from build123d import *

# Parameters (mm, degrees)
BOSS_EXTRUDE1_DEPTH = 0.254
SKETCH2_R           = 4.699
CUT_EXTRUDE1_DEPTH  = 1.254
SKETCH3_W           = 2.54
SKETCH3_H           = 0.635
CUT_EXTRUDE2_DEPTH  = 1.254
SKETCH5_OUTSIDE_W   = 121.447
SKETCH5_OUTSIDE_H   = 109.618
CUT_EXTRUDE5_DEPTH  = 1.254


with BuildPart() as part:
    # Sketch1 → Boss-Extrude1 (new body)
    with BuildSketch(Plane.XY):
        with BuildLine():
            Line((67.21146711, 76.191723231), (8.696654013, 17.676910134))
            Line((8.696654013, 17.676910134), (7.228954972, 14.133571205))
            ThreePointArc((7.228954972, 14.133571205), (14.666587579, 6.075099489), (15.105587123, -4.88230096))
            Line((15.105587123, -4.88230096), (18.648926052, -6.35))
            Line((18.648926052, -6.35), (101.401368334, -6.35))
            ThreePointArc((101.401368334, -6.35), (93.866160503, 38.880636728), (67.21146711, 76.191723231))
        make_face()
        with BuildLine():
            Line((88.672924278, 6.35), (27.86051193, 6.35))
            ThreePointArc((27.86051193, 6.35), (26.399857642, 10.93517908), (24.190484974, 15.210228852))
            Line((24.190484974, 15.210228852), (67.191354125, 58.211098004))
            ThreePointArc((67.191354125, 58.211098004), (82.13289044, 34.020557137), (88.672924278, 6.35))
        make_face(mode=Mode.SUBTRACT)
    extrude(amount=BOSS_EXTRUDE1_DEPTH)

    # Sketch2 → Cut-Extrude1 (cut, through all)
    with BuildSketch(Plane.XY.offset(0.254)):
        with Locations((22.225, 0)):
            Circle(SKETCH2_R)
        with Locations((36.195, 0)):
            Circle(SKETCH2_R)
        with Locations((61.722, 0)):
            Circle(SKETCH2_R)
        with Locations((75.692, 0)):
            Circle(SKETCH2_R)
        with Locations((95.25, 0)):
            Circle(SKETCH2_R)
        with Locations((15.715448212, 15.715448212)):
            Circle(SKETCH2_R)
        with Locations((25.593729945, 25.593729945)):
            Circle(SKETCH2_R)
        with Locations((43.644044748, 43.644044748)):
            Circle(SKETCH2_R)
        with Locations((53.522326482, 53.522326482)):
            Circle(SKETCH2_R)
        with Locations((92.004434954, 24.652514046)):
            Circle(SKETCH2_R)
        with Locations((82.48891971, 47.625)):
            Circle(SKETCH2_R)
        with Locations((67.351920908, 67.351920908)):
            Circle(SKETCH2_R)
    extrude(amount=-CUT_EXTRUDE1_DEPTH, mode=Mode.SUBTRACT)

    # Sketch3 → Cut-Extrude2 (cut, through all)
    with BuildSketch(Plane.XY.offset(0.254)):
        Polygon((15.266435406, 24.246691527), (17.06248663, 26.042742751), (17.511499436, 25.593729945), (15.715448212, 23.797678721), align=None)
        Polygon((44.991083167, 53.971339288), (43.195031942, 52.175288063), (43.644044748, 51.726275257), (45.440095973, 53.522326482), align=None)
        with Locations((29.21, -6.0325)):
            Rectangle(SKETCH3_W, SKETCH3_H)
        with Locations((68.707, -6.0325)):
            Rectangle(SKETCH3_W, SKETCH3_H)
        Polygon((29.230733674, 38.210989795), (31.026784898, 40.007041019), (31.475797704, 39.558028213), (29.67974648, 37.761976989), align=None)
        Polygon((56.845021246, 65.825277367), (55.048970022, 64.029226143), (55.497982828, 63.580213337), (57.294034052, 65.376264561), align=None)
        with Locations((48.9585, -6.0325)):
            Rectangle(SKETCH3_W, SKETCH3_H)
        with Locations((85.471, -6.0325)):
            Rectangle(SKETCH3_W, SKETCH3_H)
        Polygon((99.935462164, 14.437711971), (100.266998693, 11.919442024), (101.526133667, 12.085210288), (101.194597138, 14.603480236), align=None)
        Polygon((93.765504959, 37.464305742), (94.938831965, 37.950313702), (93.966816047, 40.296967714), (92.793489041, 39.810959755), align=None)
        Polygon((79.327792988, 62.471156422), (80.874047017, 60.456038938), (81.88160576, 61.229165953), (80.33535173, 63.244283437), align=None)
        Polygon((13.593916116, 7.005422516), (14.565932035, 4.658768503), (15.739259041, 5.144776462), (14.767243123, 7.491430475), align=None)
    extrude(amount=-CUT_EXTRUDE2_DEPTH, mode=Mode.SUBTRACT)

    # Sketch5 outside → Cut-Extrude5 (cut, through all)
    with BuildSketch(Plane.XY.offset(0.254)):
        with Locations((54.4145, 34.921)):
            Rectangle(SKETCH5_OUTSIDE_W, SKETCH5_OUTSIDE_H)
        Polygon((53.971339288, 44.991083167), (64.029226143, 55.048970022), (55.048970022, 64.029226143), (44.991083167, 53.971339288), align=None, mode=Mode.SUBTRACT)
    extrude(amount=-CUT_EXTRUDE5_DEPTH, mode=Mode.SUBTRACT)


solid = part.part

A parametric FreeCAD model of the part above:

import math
import FreeCAD as App
import Part
import Sketcher
from FreeCAD import Vector
Q = App.Units.Quantity


def add_polygon(sketch, points):
    """Adds a closed chain of lines whose ends are joined by coincident constraints."""
    first, n = sketch.GeometryCount, len(points)
    for a, b in zip(points, points[1:] + points[:1]):
        sketch.addGeometry(Part.LineSegment(App.Vector(*a, 0), App.Vector(*b, 0)), False)
    for i in range(n):
        sketch.addConstraint(Sketcher.Constraint("Coincident", first + i, 2, first + (i + 1) % n, 1))

doc = App.newDocument("Part")
body = doc.addObject("PartDesign::Body", "Body")

# Sketch on XY plane
sketch1 = doc.addObject("Sketcher::SketchObject", "Sketch")
body.addObject(sketch1)
sketch1.AttachmentSupport = (doc.XY_Plane, [""])
sketch1.MapMode = "FlatFace"
sketch1.addGeometry([
    Part.LineSegment(Vector(67.2, 76.2, 0), Vector(8.7, 17.7, 0)),  # 0
    Part.LineSegment(Vector(8.7, 17.7, 0), Vector(7.2, 14.1, 0)),  # 1
    Part.ArcOfCircle(Part.Circle(Vector(0, 0, 0), Vector(0, 0, 1), 15.9), math.radians(-18), math.radians(63)),  # 2
    Part.LineSegment(Vector(15.1, -4.9, 0), Vector(18.6, -6.3, 0)),  # 3
    Part.LineSegment(Vector(18.6, -6.3, 0), Vector(101.4, -6.3, 0)),  # 4
    Part.ArcOfCircle(Part.Circle(Vector(0, 0, 0), Vector(0, 0, 1), 101.6), math.radians(-4), math.radians(49)),  # 5
    Part.ArcOfCircle(Part.Circle(Vector(0, 0, 0), Vector(0, 0, 1), 88.9), math.radians(4), math.radians(41)),  # 6
    Part.LineSegment(Vector(88.7, 6.3, 0), Vector(27.9, 6.3, 0)),  # 7
    Part.ArcOfCircle(Part.Circle(Vector(0, 0, 0), Vector(0, 0, 1), 28.6), math.radians(12.84), math.radians(32.16)),  # 8
    Part.LineSegment(Vector(24.2, 15.2, 0), Vector(67.2, 58.2, 0)),  # 9
], False)
sketch1.addConstraint([
    Sketcher.Constraint("Coincident", 0, 2, 1, 1),
    Sketcher.Constraint("Coincident", 1, 2, 2, 2),
    Sketcher.Constraint("Coincident", 2, 1, 3, 1),
    Sketcher.Constraint("Coincident", 3, 2, 4, 1),
    Sketcher.Constraint("Coincident", 4, 2, 5, 1),
    Sketcher.Constraint("Coincident", 5, 2, 0, 1),
    Sketcher.Constraint("Coincident", 6, 1, 7, 1),
    Sketcher.Constraint("Coincident", 7, 2, 8, 1),
    Sketcher.Constraint("Coincident", 8, 2, 9, 1),
    Sketcher.Constraint("Coincident", 9, 2, 6, 2),
    Sketcher.Constraint("Horizontal", 4),
    Sketcher.Constraint("Horizontal", 7),
    Sketcher.Constraint("Coincident", 2, 3, -1, 1),
    Sketcher.Constraint("Coincident", 5, 3, -1, 1),
    Sketcher.Constraint("Coincident", 6, 3, -1, 1),
    Sketcher.Constraint("Coincident", 8, 3, -1, 1),
    Sketcher.Constraint("Perpendicular", 1, 3),
    Sketcher.Constraint("Parallel", 0, 9),
    Sketcher.Constraint("Equal", 1, 3),
    Sketcher.Constraint("Radius", 5, Q("4 in")),
    Sketcher.Constraint("Radius", 6, Q("3.5 in")),
    Sketcher.Constraint("Angle", 0, Q("-135 deg")),
    Sketcher.Constraint("Radius", 2, Q("0.625 in")),
    Sketcher.Constraint("Radius", 8, Q("1.125 in")),
    Sketcher.Constraint("Angle", 1, Q("-112.5 deg")),
    Sketcher.Constraint("DistanceY", 4, 2, 6, 1, Q("0.5 in")),
    Sketcher.Constraint("DistanceY", 3, 2, -1, 1, Q("0.25 in")),
    Sketcher.Constraint("DistanceY", 2, 1, -1, 1, Q("4.882301 mm")),
    Sketcher.Constraint("DistanceY", -1, 1, 9, 2, Q("58.211098 mm")),
    Sketcher.Constraint("DistanceX", 5, 2, 4, 2, Q("34.189901 mm")),
])
pad1 = doc.addObject("PartDesign::Pad", "Pad")
body.addObject(pad1)
pad1.Profile = sketch1
pad1.Length = Q("0.01 in")

# Sketch on XY plane
sketch2 = doc.addObject("Sketcher::SketchObject", "Sketch001")
body.addObject(sketch2)
sketch2.AttachmentSupport = (doc.XY_Plane, [""])
sketch2.MapMode = "FlatFace"
sketch2.AttachmentOffset = App.Placement(Vector(0, 0, 0.01 * 25.4), App.Rotation())
sketch2.addGeometry([
    Part.Circle(Vector(22.2, 0, 0), Vector(0, 0, 1), 4.7),  # 0
    Part.Circle(Vector(36.2, 0, 0), Vector(0, 0, 1), 4.7),  # 1
    Part.Circle(Vector(61.7, 0, 0), Vector(0, 0, 1), 4.7),  # 2
    Part.Circle(Vector(75.7, 0, 0), Vector(0, 0, 1), 4.7),  # 3
    Part.Circle(Vector(95.2, 0, 0), Vector(0, 0, 1), 4.7),  # 4
    Part.Circle(Vector(15.7, 15.7, 0), Vector(0, 0, 1), 4.7),  # 5
    Part.Circle(Vector(25.6, 25.6, 0), Vector(0, 0, 1), 4.7),  # 6
    Part.Circle(Vector(43.6, 43.6, 0), Vector(0, 0, 1), 4.7),  # 7
    Part.Circle(Vector(53.5, 53.5, 0), Vector(0, 0, 1), 4.7),  # 8
    Part.Circle(Vector(92, 24.7, 0), Vector(0, 0, 1), 4.7),  # 9
    Part.Circle(Vector(82.5, 47.6, 0), Vector(0, 0, 1), 4.7),  # 10
    Part.Circle(Vector(67.4, 67.4, 0), Vector(0, 0, 1), 4.7),  # 11
], False)
sketch2.addConstraint([
    Sketcher.Constraint("Equal", 0, 1),
    Sketcher.Constraint("Equal", 1, 2),
    Sketcher.Constraint("Equal", 2, 3),
    Sketcher.Constraint("Equal", 3, 4),
    Sketcher.Constraint("Equal", 4, 5),
    Sketcher.Constraint("Equal", 5, 6),
    Sketcher.Constraint("Equal", 6, 7),
    Sketcher.Constraint("Equal", 7, 8),
    Sketcher.Constraint("Equal", 8, 9),
    Sketcher.Constraint("Equal", 9, 10),
    Sketcher.Constraint("Equal", 10, 11),
    Sketcher.Constraint("PointOnObject", 0, 3, -1),
    Sketcher.Constraint("PointOnObject", 1, 3, -1),
    Sketcher.Constraint("PointOnObject", 2, 3, -1),
    Sketcher.Constraint("PointOnObject", 3, 3, -1),
    Sketcher.Constraint("PointOnObject", 4, 3, -1),
    Sketcher.Constraint("Diameter", 0, Q("0.37 in")),
    Sketcher.Constraint("DistanceX", -1, 1, 2, 3, Q("2.43 in")),
    Sketcher.Constraint("DistanceX", -1, 1, 3, 3, Q("2.98 in")),
    Sketcher.Constraint("DistanceX", -1, 1, 4, 3, Q("3.75 in")),
    Sketcher.Constraint("DistanceX", 0, 3, 1, 3, Q("0.55 in")),
    Sketcher.Constraint("DistanceX", -1, 1, 0, 3, Q("0.875 in")),
    Sketcher.Constraint("DistanceY", -1, 1, 10, 3, Q("1.875 in")),
    Sketcher.Constraint("DistanceX", 11, 3, 10, 3, Q("15.136999 mm")),
    Sketcher.Constraint("DistanceX", -1, 1, 5, 3, Q("15.715448 mm")),
    Sketcher.Constraint("DistanceY", -1, 1, 5, 3, Q("15.715448 mm")),
    Sketcher.Constraint("DistanceX", -1, 1, 6, 3, Q("25.59373 mm")),
    Sketcher.Constraint("DistanceY", -1, 1, 6, 3, Q("25.59373 mm")),
    Sketcher.Constraint("DistanceX", -1, 1, 10, 3, Q("82.48892 mm")),
    Sketcher.Constraint("DistanceY", -1, 1, 11, 3, Q("67.351921 mm")),
    Sketcher.Constraint("DistanceX", 7, 3, 8, 3, Q("9.878282 mm")),
    Sketcher.Constraint("DistanceY", 7, 3, 8, 3, Q("9.878282 mm")),
    Sketcher.Constraint("DistanceX", 5, 3, 8, 3, Q("37.806878 mm")),
    Sketcher.Constraint("DistanceY", 5, 3, 8, 3, Q("37.806878 mm")),
    Sketcher.Constraint("DistanceX", 8, 3, 9, 3, Q("38.482108 mm")),
    Sketcher.Constraint("DistanceY", 9, 3, 7, 3, Q("18.991531 mm")),
])
pocket1 = doc.addObject("PartDesign::Pocket", "Pocket")
body.addObject(pocket1)
pocket1.Profile = sketch2
pocket1.Type = "ThroughAll"

# Sketch on XY plane
sketch3 = doc.addObject("Sketcher::SketchObject", "Sketch002")
body.addObject(sketch3)
sketch3.AttachmentSupport = (doc.XY_Plane, [""])
sketch3.MapMode = "FlatFace"
sketch3.AttachmentOffset = App.Placement(Vector(0, 0, 0.01 * 25.4), App.Rotation())
add_polygon(sketch3, [(17.1, 26), (15.3, 24.2), (15.7, 23.8), (17.5, 25.6)])  # lines 0-3
add_polygon(sketch3, [(45, 54), (43.2, 52.2), (43.6, 51.7), (45.4, 53.5)])  # lines 4-7
add_polygon(sketch3, [(27.9, -5.7), (27.9, -6.3), (30.5, -6.3), (30.5, -5.7)])  # lines 8-11
add_polygon(sketch3, [(67.4, -5.7), (67.4, -6.3), (70, -6.3), (70, -5.7)])  # lines 12-15
add_polygon(sketch3, [(31, 40), (29.2, 38.2), (29.7, 37.8), (31.5, 39.6)])  # lines 16-19
add_polygon(sketch3, [(56.8, 65.8), (55, 64), (55.5, 63.6), (57.3, 65.4)])  # lines 20-23
add_polygon(sketch3, [(47.7, -5.7), (47.7, -6.3), (50.2, -6.3), (50.2, -5.7)])  # lines 24-27
add_polygon(sketch3, [(84.2, -5.7), (84.2, -6.3), (86.7, -6.3), (86.7, -5.7)])  # lines 28-31
add_polygon(sketch3, [(99.9, 14.4), (100.3, 11.9), (101.5, 12.1), (101.2, 14.6)])  # lines 32-35
add_polygon(sketch3, [(93.8, 37.5), (94.9, 38), (94, 40.3), (92.8, 39.8)])  # lines 36-39
add_polygon(sketch3, [(79.3, 62.5), (80.9, 60.5), (81.9, 61.2), (80.3, 63.2)])  # lines 40-43
add_polygon(sketch3, [(13.6, 7), (14.6, 4.7), (15.7, 5.1), (14.8, 7.5)])  # lines 44-47
sketch3.addConstraint([
    Sketcher.Constraint("Vertical", 8),
    Sketcher.Constraint("Horizontal", 9),
    Sketcher.Constraint("Vertical", 10),
    Sketcher.Constraint("Horizontal", 11),
    Sketcher.Constraint("Vertical", 12),
    Sketcher.Constraint("Horizontal", 13),
    Sketcher.Constraint("Vertical", 14),
    Sketcher.Constraint("Horizontal", 15),
    Sketcher.Constraint("Vertical", 24),
    Sketcher.Constraint("Horizontal", 25),
    Sketcher.Constraint("Vertical", 26),
    Sketcher.Constraint("Horizontal", 27),
    Sketcher.Constraint("Vertical", 28),
    Sketcher.Constraint("Horizontal", 29),
    Sketcher.Constraint("Vertical", 30),
    Sketcher.Constraint("Horizontal", 31),
    Sketcher.Constraint("Perpendicular", 0, 1),
    Sketcher.Constraint("Perpendicular", 1, 2),
    Sketcher.Constraint("Perpendicular", 2, 3),
    Sketcher.Constraint("Perpendicular", 3, 4),
    Sketcher.Constraint("Perpendicular", 4, 5),
    Sketcher.Constraint("Perpendicular", 5, 6),
    Sketcher.Constraint("Perpendicular", 6, 7),
    Sketcher.Constraint("Perpendicular", 7, 16),
    Sketcher.Constraint("Perpendicular", 16, 17),
    Sketcher.Constraint("Perpendicular", 17, 18),
    Sketcher.Constraint("Perpendicular", 18, 19),
    Sketcher.Constraint("Perpendicular", 19, 20),
    Sketcher.Constraint("Perpendicular", 20, 21),
    Sketcher.Constraint("Perpendicular", 21, 22),
    Sketcher.Constraint("Perpendicular", 22, 23),
    Sketcher.Constraint("Perpendicular", 32, 33),
    Sketcher.Constraint("Perpendicular", 33, 34),
    Sketcher.Constraint("Perpendicular", 34, 35),
    Sketcher.Constraint("Perpendicular", 36, 37),
    Sketcher.Constraint("Perpendicular", 37, 38),
    Sketcher.Constraint("Perpendicular", 38, 39),
    Sketcher.Constraint("Perpendicular", 40, 41),
    Sketcher.Constraint("Perpendicular", 41, 42),
    Sketcher.Constraint("Perpendicular", 42, 43),
    Sketcher.Constraint("Parallel", 39, 44),
    Sketcher.Constraint("Perpendicular", 44, 45),
    Sketcher.Constraint("Perpendicular", 45, 46),
    Sketcher.Constraint("Perpendicular", 46, 47),
    Sketcher.Constraint("Horizontal", 9, 2, 12, 2),
    Sketcher.Constraint("Horizontal", 11, 2, 14, 2),
    Sketcher.Constraint("Horizontal", 13, 2, 24, 2),
    Sketcher.Constraint("Horizontal", 15, 2, 26, 2),
    Sketcher.Constraint("Horizontal", 25, 2, 28, 2),
    Sketcher.Constraint("Horizontal", 27, 2, 30, 2),
    Sketcher.Constraint("Equal", 11, 13),
    Sketcher.Constraint("Equal", 15, 25),
    Sketcher.Constraint("Equal", 27, 29),
    Sketcher.Constraint("Equal", 2, 4),
    Sketcher.Constraint("Equal", 3, 5),
    Sketcher.Constraint("Equal", 6, 16),
    Sketcher.Constraint("Equal", 7, 17),
    Sketcher.Constraint("Equal", 18, 20),
    Sketcher.Constraint("Equal", 19, 21),
    Sketcher.Constraint("Equal", 22, 32),
    Sketcher.Constraint("Equal", 35, 36),
    Sketcher.Constraint("Equal", 34, 37),
    Sketcher.Constraint("Equal", 39, 40),
    Sketcher.Constraint("Equal", 38, 41),
    Sketcher.Constraint("Equal", 42, 44),
    Sketcher.Constraint("Equal", 43, 45),
    Sketcher.Constraint("DistanceX", 9, 1, 9, 2, Q("0.1 in")),
    Sketcher.Constraint("Angle", 0, Q("-135 deg")),
    Sketcher.Constraint("Distance", 0, Q("0.1 in")),
    Sketcher.Constraint("DistanceX", -1, 1, 8, 2, Q("1.1 in")),
    Sketcher.Constraint("Angle", 32, Q("-82.5 deg")),
    Sketcher.Constraint("Angle", 36, Q("22.5 deg")),
    Sketcher.Constraint("Angle", 40, Q("-52.5 deg")),
    Sketcher.Constraint("Distance", 33, Q("0.05 in")),
    Sketcher.Constraint("DistanceY", 8, 2, 8, 1, Q("0.025 in")),
    Sketcher.Constraint("DistanceY", 8, 2, -1, 1, Q("0.25 in")),
    Sketcher.Constraint("DistanceX", 13, 2, 28, 2, Q("0.56 in")),
    Sketcher.Constraint("Distance", 1, Q("0.025 in")),
    Sketcher.Constraint("DistanceX", -1, 1, 12, 2, Q("2.655 in")),
    Sketcher.Constraint("DistanceX", -1, 1, 24, 2, Q("1.8775 in")),
    Sketcher.Constraint("DistanceX", -1, 1, 2, 2, Q("17.511499 mm")),
    Sketcher.Constraint("DistanceX", -1, 1, 32, 2, Q("100.266999 mm")),
    Sketcher.Constraint("DistanceX", 16, 2, 4, 2, Q("13.964298 mm")),
    Sketcher.Constraint("DistanceY", 16, 2, 4, 2, Q("13.964298 mm")),
    Sketcher.Constraint("DistanceX", 0, 2, 16, 2, Q("13.964298 mm")),
    Sketcher.Constraint("DistanceY", 0, 2, 16, 2, Q("13.964298 mm")),
    Sketcher.Constraint("DistanceY", 6, 2, 20, 2, Q("10.5069 mm")),
    Sketcher.Constraint("DistanceX", 7, 2, 21, 2, Q("10.5069 mm")),
    Sketcher.Constraint("DistanceY", 35, 2, 36, 2, Q("23.512602 mm")),
    Sketcher.Constraint("DistanceX", 36, 2, 33, 2, Q("6.587302 mm")),
    Sketcher.Constraint("DistanceY", 37, 2, 41, 2, Q("20.932198 mm")),
    Sketcher.Constraint("DistanceY", 41, 2, 22, 2, Q("4.147099 mm")),
    Sketcher.Constraint("DistanceY", 46, 2, 2, 2, Q("18.102299 mm")),
    Sketcher.Constraint("DistanceY", -1, 1, 0, 2, Q("24.246692 mm")),
    Sketcher.Constraint("DistanceX", -1, 1, 42, 2, Q("80.335352 mm")),
    Sketcher.Constraint("DistanceX", -1, 1, 45, 2, Q("15.739259 mm")),
])
pocket2 = doc.addObject("PartDesign::Pocket", "Pocket001")
body.addObject(pocket2)
pocket2.Profile = sketch3
pocket2.Type = "ThroughAll"

# Sketch on XY plane
sketch4 = doc.addObject("Sketcher::SketchObject", "Sketch003")
body.addObject(sketch4)
sketch4.AttachmentSupport = (doc.XY_Plane, [""])
sketch4.MapMode = "FlatFace"
sketch4.AttachmentOffset = App.Placement(Vector(0, 0, 0.01 * 25.4), App.Rotation())
add_polygon(sketch4, [(-6, 90), (-6, -20), (115, -20), (115, 90)])  # lines 0-3
add_polygon(sketch4, [(64, 55), (54, 45), (45, 54), (55, 64)])  # lines 4-7
sketch4.addConstraint([
    Sketcher.Constraint("Vertical", 0),
    Sketcher.Constraint("Horizontal", 1),
    Sketcher.Constraint("Vertical", 2),
    Sketcher.Constraint("Horizontal", 3),
    Sketcher.Constraint("Perpendicular", 4, 5),
    Sketcher.Constraint("Perpendicular", 5, 6),
    Sketcher.Constraint("Perpendicular", 6, 7),
    Sketcher.Constraint("Angle", 4, Q("-135 deg")),
    Sketcher.Constraint("Distance", 5, Q("0.5 in")),
    Sketcher.Constraint("Distance", 4, Q("0.56 in")),
    Sketcher.Constraint("DistanceX", 1, 1, 1, 2, Q("121.447 mm")),
    Sketcher.Constraint("DistanceY", 0, 2, 0, 1, Q("109.618 mm")),
    Sketcher.Constraint("DistanceX", 0, 2, -1, 1, Q("6.309 mm")),
    Sketcher.Constraint("DistanceY", 0, 2, -1, 1, Q("19.888 mm")),
    Sketcher.Constraint("DistanceX", -1, 1, 4, 2, Q("53.971339 mm")),
    Sketcher.Constraint("DistanceY", -1, 1, 5, 2, Q("53.971339 mm")),
])
pocket3 = doc.addObject("PartDesign::Pocket", "Pocket002")
body.addObject(pocket3)
pocket3.Profile = sketch4
pocket3.Type = "ThroughAll"

doc.recompute()
